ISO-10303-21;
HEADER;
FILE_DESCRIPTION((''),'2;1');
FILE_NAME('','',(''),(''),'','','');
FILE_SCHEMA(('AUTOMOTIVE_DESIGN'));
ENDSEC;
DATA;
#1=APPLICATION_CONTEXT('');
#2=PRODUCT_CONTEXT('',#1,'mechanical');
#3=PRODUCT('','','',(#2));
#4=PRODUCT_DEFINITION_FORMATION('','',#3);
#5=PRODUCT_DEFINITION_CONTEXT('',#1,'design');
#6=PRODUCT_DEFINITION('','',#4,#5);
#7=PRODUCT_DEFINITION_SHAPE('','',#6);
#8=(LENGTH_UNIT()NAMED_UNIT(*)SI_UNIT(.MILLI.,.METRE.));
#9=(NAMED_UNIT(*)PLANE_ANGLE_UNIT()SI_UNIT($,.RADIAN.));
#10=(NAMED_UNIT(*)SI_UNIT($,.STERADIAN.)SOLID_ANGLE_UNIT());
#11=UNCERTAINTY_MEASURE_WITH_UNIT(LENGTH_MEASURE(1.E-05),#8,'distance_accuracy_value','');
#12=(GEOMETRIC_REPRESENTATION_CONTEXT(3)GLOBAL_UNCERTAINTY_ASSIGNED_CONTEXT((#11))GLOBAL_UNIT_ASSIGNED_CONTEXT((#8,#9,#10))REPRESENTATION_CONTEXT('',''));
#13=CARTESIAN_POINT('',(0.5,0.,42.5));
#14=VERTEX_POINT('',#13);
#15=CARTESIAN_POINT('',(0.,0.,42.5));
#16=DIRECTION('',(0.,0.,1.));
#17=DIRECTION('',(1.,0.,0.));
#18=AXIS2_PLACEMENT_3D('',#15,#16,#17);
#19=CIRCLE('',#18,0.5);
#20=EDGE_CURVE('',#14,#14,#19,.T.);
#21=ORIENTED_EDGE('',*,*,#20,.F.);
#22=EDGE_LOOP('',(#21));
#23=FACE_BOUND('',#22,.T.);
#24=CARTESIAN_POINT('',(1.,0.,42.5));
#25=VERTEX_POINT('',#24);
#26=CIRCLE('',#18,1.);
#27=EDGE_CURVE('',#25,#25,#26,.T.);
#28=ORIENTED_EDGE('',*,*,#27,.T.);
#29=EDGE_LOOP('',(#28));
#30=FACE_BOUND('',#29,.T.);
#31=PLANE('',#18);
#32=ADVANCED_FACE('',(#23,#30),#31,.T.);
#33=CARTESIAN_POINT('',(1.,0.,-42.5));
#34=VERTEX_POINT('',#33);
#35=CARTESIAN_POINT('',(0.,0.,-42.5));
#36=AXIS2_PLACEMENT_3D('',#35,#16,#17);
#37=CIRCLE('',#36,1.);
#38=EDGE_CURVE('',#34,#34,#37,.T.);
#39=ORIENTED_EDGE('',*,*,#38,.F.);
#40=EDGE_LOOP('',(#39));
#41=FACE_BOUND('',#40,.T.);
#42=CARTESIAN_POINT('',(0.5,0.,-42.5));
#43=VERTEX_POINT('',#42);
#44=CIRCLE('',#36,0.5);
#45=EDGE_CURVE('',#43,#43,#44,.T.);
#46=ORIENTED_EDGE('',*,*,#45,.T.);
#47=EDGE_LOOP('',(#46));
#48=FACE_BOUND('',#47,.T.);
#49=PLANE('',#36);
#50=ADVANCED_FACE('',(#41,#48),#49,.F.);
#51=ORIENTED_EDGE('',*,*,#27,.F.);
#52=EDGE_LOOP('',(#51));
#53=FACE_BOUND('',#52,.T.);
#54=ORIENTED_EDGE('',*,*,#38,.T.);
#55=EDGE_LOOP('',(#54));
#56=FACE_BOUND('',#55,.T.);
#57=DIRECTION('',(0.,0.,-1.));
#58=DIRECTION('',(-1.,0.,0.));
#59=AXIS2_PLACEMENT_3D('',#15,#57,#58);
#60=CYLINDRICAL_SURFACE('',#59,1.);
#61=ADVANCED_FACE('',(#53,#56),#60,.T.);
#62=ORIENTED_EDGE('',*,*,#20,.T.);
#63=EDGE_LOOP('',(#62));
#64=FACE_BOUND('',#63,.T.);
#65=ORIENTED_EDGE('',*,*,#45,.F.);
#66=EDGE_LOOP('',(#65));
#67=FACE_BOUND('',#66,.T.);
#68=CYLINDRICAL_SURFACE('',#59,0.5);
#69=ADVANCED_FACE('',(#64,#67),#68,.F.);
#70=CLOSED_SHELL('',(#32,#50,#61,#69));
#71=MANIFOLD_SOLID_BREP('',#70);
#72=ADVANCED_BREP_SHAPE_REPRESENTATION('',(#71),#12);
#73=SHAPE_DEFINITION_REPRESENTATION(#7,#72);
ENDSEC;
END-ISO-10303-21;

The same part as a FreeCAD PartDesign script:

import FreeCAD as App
import Part
import Sketcher
Q = App.Units.Quantity

doc = App.newDocument("Part")
body = doc.addObject("PartDesign::Body", "Body")

sketch1 = body.newObject("Sketcher::SketchObject", "Sketch")
sketch1.AttachmentSupport = (doc.getObject("XY_Plane"), [""])
sketch1.MapMode = "FlatFace"
sketch1.AttachmentOffset = App.Placement(App.Vector(0, 0, -42.5), App.Rotation())
sketch1.addGeometry([
    Part.Circle(App.Vector(0, 0, 0), App.Vector(0, 0, 1), 1),
    Part.Circle(App.Vector(0, 0, 0), App.Vector(0, 0, 1), 0.5),
], False)
sketch1.addConstraint([
    Sketcher.Constraint("Coincident", 0, 3, -1, 1),
    Sketcher.Constraint("Coincident", 1, 3, -1, 1),
    Sketcher.Constraint("Diameter", 0, Q("2 mm")),
    Sketcher.Constraint("Diameter", 1, Q("1 mm")),
])
pad1 = body.newObject("PartDesign::Pad", "Pad")
pad1.Profile = sketch1
pad1.Length = 85

doc.recompute()
